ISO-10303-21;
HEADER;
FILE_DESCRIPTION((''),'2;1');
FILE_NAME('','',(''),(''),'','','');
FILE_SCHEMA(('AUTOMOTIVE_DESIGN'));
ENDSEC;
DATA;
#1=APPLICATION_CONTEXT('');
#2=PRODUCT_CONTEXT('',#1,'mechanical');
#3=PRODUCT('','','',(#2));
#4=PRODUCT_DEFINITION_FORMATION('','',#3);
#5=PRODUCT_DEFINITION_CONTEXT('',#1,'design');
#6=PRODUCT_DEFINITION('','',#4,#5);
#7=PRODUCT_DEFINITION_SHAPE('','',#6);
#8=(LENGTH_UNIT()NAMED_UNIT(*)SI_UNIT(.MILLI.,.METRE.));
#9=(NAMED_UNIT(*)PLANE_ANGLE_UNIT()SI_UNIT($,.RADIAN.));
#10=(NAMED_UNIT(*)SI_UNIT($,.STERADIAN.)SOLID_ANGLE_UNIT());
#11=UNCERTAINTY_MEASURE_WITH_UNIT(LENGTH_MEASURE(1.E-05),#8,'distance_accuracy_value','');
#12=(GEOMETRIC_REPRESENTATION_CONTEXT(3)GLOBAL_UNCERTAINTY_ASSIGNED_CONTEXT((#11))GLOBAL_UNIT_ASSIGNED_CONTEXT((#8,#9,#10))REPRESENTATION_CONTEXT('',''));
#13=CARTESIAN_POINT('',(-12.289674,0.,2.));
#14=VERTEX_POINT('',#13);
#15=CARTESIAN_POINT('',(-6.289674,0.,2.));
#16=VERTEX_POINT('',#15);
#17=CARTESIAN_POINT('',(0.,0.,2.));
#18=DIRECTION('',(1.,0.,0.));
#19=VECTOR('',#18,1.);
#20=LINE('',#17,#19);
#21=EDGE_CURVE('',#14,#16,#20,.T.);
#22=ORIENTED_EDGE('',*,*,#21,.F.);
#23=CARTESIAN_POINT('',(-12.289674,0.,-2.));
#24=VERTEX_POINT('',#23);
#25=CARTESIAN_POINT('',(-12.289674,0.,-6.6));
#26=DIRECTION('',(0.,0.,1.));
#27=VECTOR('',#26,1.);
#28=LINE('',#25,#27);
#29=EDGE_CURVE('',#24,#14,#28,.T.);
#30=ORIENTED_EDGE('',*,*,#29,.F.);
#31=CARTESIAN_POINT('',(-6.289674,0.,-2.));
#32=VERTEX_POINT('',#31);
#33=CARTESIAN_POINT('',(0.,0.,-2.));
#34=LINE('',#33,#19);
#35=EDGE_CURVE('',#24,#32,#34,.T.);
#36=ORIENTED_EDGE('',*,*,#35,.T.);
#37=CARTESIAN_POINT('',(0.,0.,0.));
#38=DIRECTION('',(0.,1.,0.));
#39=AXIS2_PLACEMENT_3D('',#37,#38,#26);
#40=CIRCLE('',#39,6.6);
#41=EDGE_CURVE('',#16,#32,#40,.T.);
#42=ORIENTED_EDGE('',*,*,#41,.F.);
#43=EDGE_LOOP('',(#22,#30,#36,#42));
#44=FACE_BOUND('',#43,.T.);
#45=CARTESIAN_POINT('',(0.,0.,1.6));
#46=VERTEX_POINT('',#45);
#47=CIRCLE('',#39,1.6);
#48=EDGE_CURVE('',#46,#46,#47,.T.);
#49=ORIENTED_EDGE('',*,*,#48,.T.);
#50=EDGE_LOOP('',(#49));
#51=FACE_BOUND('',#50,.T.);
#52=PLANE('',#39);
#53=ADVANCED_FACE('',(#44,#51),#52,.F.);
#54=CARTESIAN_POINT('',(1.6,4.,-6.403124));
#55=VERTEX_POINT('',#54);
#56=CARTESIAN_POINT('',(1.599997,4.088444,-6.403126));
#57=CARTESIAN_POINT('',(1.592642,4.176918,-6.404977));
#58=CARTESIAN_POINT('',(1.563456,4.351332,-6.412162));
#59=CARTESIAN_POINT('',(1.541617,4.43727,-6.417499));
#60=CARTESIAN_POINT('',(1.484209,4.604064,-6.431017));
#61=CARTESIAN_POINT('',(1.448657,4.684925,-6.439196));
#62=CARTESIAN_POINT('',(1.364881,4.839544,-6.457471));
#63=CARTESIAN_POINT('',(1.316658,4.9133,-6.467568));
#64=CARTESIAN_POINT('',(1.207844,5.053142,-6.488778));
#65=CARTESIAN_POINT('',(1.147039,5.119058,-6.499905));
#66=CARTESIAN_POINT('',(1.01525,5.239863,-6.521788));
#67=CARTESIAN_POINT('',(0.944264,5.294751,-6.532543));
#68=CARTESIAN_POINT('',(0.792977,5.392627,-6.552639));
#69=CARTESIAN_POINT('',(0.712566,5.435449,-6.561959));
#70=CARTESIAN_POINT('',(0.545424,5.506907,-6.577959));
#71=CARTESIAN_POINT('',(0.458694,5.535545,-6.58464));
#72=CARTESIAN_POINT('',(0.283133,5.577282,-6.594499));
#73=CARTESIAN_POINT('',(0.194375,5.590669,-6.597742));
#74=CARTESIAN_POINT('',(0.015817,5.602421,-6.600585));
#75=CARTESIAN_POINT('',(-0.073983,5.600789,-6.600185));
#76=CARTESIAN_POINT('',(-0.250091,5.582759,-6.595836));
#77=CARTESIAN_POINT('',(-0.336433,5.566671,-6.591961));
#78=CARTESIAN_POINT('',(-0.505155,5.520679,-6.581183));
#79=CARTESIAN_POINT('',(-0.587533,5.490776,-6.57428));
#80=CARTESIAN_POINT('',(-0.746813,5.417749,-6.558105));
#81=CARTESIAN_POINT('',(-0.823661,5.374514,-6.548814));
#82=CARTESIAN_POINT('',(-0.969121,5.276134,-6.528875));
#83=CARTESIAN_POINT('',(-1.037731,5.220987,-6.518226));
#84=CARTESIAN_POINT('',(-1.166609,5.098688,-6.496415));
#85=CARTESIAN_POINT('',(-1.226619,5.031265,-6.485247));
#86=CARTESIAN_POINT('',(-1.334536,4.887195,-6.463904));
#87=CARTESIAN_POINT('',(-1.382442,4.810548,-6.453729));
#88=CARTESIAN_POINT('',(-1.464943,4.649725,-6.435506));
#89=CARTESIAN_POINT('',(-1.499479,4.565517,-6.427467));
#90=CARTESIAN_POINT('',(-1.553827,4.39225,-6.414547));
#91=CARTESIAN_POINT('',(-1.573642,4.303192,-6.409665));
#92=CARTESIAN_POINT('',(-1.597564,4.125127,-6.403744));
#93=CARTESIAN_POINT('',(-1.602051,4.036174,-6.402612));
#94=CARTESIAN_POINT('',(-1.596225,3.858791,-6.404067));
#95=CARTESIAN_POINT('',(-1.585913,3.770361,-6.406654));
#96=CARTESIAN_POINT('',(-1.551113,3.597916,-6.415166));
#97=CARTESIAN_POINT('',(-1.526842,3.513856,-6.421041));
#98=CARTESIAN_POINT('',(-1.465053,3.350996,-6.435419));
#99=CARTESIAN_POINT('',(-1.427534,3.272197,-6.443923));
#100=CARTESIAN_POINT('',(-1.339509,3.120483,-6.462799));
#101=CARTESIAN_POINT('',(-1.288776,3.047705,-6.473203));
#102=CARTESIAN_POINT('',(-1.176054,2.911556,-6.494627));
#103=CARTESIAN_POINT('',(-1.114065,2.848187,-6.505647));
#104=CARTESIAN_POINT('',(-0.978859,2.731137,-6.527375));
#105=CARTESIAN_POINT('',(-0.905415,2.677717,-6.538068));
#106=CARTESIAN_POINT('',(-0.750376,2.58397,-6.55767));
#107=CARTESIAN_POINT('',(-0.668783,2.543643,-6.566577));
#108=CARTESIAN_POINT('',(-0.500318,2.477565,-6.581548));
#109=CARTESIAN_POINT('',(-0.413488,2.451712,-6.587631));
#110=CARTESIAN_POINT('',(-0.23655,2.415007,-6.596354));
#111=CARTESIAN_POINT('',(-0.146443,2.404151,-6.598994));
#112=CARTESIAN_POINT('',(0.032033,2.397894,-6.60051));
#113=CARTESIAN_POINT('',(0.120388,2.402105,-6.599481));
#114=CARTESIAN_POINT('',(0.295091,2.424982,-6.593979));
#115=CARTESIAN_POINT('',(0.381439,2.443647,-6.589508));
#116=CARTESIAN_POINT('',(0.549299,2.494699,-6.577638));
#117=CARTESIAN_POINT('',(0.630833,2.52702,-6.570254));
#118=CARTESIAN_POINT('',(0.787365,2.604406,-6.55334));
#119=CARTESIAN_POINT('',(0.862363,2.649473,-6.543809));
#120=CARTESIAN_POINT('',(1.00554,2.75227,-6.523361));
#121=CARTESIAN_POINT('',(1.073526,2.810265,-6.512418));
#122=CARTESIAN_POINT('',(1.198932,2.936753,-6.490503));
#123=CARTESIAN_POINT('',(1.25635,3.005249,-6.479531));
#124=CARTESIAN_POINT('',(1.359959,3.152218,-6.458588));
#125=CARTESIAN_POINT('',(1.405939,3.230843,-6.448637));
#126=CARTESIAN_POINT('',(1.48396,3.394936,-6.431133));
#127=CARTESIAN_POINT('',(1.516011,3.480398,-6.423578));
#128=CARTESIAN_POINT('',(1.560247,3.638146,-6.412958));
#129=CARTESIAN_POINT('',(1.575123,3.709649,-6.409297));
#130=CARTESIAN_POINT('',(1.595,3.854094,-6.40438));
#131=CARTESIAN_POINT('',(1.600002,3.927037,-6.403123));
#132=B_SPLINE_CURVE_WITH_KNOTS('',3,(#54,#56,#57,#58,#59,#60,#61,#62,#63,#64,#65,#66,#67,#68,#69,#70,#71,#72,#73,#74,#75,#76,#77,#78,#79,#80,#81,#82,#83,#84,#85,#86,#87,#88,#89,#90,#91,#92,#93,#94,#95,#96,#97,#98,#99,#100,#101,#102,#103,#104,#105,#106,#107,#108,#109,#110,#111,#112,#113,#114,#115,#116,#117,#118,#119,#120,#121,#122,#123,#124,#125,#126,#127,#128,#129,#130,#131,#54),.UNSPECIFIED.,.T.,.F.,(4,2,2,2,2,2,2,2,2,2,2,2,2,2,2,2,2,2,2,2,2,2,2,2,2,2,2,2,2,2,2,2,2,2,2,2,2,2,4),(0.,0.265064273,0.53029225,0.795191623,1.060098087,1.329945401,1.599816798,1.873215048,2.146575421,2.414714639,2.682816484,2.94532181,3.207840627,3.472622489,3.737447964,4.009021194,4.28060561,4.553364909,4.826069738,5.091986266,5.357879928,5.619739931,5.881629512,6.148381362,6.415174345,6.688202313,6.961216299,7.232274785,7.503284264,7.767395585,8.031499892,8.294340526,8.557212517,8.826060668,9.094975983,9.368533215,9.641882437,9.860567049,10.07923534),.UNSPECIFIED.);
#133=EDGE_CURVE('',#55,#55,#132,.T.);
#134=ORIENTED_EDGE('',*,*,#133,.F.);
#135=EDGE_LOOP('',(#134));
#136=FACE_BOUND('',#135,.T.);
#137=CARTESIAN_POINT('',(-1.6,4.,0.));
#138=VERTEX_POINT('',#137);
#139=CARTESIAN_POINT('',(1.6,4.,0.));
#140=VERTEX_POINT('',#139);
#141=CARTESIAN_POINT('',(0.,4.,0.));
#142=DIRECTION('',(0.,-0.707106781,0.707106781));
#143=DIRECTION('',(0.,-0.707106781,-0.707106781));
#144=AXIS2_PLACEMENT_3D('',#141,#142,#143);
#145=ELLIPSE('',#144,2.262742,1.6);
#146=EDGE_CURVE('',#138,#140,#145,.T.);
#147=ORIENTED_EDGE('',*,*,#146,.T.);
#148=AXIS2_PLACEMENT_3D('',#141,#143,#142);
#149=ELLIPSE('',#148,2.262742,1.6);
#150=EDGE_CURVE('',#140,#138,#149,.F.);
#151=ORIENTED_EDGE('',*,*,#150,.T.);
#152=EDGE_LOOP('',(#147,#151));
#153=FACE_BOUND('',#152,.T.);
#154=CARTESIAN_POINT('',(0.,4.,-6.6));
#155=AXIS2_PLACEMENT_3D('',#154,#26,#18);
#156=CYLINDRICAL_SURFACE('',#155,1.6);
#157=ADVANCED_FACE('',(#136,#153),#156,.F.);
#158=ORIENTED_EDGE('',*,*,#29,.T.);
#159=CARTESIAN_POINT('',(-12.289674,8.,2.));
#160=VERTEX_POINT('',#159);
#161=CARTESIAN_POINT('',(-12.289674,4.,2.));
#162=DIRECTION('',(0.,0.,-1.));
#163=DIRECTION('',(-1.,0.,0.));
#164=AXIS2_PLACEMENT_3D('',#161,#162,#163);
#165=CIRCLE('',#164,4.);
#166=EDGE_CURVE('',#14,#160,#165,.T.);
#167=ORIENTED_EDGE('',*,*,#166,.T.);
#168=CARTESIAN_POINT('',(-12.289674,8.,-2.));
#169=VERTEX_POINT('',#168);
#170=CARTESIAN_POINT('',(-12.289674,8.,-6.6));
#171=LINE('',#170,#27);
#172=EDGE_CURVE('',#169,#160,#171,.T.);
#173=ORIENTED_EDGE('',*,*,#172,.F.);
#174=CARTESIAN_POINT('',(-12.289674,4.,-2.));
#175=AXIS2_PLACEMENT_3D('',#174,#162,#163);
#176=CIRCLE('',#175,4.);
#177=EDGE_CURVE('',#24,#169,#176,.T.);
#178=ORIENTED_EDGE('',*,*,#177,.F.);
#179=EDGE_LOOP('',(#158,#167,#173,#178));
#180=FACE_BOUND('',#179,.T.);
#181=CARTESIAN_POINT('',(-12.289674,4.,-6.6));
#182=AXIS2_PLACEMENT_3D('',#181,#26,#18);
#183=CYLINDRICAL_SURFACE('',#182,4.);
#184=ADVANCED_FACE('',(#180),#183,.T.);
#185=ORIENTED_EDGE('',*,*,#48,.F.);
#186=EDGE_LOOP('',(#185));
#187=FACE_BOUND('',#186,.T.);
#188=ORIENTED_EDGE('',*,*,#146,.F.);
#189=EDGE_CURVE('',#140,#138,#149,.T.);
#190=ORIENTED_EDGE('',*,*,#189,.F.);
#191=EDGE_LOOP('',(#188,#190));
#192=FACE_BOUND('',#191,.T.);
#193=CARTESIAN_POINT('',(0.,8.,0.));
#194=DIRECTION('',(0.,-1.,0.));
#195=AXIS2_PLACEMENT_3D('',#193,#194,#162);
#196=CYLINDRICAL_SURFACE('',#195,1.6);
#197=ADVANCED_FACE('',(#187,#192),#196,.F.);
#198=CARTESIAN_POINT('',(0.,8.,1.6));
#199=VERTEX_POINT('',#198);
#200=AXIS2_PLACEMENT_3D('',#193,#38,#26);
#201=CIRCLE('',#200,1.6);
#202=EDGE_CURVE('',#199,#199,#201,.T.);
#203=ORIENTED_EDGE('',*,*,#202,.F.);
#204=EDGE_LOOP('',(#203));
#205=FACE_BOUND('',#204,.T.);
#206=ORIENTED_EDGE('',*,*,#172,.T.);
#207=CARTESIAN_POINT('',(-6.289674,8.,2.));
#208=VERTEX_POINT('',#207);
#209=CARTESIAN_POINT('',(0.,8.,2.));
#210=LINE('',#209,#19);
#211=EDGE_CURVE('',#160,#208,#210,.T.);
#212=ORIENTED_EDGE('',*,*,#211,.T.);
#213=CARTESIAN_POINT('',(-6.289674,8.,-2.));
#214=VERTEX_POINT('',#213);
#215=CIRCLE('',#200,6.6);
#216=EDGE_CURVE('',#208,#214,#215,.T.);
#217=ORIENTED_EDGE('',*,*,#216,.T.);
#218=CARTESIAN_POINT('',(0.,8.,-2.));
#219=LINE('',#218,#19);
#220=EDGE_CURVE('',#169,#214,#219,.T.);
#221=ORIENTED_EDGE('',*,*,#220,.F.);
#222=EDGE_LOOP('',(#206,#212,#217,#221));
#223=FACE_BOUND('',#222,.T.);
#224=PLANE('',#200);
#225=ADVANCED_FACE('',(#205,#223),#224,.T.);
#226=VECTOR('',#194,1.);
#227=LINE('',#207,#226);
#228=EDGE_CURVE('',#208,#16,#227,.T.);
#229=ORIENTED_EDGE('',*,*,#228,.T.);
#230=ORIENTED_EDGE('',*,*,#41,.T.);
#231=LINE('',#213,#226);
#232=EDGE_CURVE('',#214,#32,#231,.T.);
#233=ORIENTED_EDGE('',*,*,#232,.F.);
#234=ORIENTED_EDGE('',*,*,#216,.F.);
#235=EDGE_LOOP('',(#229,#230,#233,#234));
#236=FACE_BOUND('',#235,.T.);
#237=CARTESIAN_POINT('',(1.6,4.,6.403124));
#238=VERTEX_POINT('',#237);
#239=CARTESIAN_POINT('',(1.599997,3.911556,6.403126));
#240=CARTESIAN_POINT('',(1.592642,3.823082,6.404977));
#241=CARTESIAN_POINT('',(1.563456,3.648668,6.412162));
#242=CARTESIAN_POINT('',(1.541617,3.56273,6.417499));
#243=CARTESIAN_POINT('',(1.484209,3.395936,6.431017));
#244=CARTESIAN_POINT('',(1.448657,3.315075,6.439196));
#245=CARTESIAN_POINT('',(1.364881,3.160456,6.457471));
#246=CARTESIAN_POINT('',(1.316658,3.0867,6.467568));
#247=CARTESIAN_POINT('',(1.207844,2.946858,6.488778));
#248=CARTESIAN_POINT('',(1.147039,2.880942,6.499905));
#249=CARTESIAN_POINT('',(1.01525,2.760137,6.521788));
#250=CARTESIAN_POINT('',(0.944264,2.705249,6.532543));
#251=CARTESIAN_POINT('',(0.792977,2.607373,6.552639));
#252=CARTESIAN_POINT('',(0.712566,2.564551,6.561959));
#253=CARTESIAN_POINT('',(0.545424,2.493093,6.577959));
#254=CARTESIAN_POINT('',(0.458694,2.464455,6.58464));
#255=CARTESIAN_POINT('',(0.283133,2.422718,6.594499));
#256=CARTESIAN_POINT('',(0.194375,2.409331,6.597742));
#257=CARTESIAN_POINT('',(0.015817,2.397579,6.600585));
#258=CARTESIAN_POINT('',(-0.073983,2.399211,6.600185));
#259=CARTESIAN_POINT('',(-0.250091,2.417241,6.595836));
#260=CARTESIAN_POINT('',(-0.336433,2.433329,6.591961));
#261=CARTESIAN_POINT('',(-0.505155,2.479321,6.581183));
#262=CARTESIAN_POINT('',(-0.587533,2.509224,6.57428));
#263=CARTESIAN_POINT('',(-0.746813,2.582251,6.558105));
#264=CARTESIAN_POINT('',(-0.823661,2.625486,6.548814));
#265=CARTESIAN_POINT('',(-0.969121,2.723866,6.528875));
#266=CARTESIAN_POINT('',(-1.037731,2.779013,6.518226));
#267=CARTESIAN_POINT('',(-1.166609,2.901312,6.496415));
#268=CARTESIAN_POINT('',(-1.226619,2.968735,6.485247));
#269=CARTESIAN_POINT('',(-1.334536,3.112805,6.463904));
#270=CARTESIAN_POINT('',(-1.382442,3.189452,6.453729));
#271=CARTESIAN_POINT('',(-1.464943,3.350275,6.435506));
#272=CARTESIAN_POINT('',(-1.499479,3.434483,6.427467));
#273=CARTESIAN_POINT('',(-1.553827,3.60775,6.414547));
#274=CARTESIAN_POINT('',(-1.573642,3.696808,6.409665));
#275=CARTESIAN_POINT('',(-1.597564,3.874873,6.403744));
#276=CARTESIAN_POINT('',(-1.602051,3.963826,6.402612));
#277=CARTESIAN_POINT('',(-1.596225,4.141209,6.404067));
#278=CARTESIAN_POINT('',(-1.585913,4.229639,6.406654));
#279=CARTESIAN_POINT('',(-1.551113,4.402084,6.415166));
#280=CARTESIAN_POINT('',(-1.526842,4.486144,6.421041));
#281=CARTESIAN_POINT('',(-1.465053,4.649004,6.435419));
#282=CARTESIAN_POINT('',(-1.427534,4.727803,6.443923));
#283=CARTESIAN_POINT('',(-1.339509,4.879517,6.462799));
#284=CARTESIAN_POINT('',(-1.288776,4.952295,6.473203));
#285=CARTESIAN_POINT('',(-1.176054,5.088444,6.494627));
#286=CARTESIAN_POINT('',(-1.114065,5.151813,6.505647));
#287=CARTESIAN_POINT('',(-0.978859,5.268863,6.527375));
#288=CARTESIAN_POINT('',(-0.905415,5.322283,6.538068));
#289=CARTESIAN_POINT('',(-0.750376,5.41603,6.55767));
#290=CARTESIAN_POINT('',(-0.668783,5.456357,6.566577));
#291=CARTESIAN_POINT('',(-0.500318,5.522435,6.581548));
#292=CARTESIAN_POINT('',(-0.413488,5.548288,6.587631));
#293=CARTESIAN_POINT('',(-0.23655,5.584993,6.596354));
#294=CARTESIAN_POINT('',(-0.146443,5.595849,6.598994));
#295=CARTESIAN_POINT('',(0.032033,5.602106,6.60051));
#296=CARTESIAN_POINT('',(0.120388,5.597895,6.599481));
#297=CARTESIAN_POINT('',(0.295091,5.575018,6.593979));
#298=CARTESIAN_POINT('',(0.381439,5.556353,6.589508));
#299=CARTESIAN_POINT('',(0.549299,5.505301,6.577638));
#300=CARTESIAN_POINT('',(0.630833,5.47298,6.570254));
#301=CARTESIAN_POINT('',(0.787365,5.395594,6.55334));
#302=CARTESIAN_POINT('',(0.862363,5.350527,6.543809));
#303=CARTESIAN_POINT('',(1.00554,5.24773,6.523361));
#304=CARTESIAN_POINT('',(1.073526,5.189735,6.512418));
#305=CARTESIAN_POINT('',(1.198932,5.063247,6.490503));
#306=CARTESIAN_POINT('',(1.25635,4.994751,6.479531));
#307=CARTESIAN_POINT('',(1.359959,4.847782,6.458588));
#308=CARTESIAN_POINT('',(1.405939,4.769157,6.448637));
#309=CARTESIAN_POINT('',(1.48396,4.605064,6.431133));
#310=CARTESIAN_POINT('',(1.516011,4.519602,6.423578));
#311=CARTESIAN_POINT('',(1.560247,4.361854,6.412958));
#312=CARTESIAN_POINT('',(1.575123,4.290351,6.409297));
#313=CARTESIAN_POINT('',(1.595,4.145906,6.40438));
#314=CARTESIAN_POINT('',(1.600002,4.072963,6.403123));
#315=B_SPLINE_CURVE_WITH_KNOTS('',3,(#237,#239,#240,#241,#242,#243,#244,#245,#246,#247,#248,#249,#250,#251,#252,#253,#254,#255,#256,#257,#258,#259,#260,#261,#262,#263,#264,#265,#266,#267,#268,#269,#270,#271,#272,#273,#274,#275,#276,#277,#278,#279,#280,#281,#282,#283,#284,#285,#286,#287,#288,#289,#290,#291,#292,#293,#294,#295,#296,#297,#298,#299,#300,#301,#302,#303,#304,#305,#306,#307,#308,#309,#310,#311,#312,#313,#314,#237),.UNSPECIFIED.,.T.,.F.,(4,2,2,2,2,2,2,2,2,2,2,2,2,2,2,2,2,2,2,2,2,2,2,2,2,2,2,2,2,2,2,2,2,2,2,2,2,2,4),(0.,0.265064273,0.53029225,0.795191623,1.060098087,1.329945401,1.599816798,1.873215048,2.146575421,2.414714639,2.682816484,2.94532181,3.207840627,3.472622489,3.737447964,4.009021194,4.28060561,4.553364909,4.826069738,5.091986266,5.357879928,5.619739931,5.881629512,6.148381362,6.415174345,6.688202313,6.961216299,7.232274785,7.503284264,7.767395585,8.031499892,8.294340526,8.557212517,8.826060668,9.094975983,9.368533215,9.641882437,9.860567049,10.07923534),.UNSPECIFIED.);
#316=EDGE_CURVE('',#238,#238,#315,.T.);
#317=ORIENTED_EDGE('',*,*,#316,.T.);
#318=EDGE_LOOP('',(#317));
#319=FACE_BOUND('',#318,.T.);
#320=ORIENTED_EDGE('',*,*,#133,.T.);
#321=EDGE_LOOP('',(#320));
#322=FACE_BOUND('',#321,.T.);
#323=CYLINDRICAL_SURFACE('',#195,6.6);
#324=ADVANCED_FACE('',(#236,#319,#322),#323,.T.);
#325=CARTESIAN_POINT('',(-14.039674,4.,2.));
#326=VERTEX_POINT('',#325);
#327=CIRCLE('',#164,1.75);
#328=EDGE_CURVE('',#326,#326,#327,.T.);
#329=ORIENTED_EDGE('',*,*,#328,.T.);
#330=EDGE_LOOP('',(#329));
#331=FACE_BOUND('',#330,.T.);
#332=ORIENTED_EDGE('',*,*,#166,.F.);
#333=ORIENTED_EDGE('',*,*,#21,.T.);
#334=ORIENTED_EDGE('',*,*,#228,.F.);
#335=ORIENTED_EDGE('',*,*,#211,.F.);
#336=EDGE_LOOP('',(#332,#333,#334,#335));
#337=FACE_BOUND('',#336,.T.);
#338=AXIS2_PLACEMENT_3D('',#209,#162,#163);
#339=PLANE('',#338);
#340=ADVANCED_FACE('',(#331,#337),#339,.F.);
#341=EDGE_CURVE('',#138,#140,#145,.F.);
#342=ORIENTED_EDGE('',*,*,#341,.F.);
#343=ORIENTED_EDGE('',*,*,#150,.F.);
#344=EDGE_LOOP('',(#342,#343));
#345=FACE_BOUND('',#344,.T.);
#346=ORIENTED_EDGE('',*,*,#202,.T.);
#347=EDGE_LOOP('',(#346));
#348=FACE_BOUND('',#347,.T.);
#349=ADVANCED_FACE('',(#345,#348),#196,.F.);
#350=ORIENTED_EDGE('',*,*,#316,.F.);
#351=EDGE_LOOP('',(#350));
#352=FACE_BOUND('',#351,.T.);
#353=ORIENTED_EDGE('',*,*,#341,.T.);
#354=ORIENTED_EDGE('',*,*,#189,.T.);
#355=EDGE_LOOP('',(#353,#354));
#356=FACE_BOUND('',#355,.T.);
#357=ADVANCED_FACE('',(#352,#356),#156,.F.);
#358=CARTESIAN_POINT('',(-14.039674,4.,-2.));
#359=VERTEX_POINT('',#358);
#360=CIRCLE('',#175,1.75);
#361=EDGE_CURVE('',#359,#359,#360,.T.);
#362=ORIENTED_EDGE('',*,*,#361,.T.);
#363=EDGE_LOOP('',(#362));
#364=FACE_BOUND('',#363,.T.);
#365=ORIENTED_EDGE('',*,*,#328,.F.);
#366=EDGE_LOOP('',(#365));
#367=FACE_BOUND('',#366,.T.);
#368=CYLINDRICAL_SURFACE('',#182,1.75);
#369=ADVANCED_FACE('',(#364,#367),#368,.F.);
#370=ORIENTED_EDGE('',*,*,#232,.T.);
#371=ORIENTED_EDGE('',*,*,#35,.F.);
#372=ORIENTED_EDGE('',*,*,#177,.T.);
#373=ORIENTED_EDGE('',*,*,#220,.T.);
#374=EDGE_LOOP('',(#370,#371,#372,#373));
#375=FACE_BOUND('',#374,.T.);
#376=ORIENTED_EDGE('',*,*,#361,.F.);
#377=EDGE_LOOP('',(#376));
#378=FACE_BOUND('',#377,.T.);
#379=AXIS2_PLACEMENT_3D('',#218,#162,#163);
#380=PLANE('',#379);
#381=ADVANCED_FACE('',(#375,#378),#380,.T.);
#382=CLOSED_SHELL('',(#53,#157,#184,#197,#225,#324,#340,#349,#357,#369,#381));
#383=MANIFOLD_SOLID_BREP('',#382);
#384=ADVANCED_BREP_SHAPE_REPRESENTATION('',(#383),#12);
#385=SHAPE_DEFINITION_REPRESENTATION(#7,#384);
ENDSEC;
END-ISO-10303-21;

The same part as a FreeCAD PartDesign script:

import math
import FreeCAD as App
import Part
import Sketcher

doc = App.newDocument("Part")
body = doc.addObject("PartDesign::Body", "Body")

sketch1 = body.newObject("Sketcher::SketchObject", "Sketch")
sketch1.AttachmentSupport = (doc.getObject("XZ_Plane"), [""])
sketch1.MapMode = "FlatFace"
sketch1.addGeometry([
    Part.LineSegment(App.Vector(-6.289674, -2, 0), App.Vector(-16.289674, -2, 0)),
    Part.LineSegment(App.Vector(-16.289674, -2, 0), App.Vector(-16.289674, 2, 0)),
    Part.LineSegment(App.Vector(-16.289674, 2, 0), App.Vector(-6.289674, 2, 0)),
    Part.ArcOfCircle(Part.Circle(App.Vector(0, 0, 0), App.Vector(0, 0, 1), 6.6), math.radians(17.639701), math.radians(162.360299)),
    Part.ArcOfCircle(Part.Circle(App.Vector(0, 0, 0), App.Vector(0, 0, 1), 6.6), math.radians(-17.639701), math.radians(17.639701)),
    Part.ArcOfCircle(Part.Circle(App.Vector(0, 0, 0), App.Vector(0, 0, 1), 6.6), math.radians(-162.360299), math.radians(-17.639701)),
    Part.Circle(App.Vector(0, 0, 0), App.Vector(0, 0, 1), 1.6),
], False)
sketch1.addConstraint([
    Sketcher.Constraint("Coincident", 0, 2, 1, 1),
    Sketcher.Constraint("Coincident", 1, 2, 2, 1),
    Sketcher.Constraint("Coincident", 2, 2, 3, 2),
    Sketcher.Constraint("Tangent", 3, 1, 4, 2),
    Sketcher.Constraint("Tangent", 4, 1, 5, 2),
    Sketcher.Constraint("Coincident", 5, 1, 0, 1),
    Sketcher.Constraint("Horizontal", 0),
    Sketcher.Constraint("Vertical", 1),
    Sketcher.Constraint("Horizontal", 2),
    Sketcher.Constraint("Coincident", 3, 3, -1, 1),
    Sketcher.Constraint("Coincident", 5, 3, -1, 1),
    Sketcher.Constraint("Coincident", 6, 3, -1, 1),
    Sketcher.Constraint("Horizontal", 2, 2, 3, 1),
    Sketcher.Constraint("Horizontal", 0, 2, 4, 1),
    Sketcher.Constraint("Vertical", 3, 1, 4, 1),
    Sketcher.Constraint("Diameter", 6, 3.2),
    Sketcher.Constraint("Radius", 3, 6.6),
    Sketcher.Constraint("DistanceX", 0, 2, 0, 1, 10.0),
    Sketcher.Constraint("DistanceY", 1, 1, 1, 2, 4.0),
])
pad1 = body.newObject("PartDesign::Pad", "Pad")
pad1.Profile = sketch1
pad1.Length = 8
pad1.Reversed = True

sketch2 = body.newObject("Sketcher::SketchObject", "Sketch001")
sketch2.AttachmentSupport = (doc.getObject("XY_Plane"), [""])
sketch2.MapMode = "FlatFace"
sketch2.AttachmentOffset = App.Placement(App.Vector(0, 0, 2), App.Rotation())
sketch2.addGeometry([
    Part.LineSegment(App.Vector(-16.289674, 8, 0), App.Vector(-16.289674, 4, 0)),
    Part.ArcOfCircle(Part.Circle(App.Vector(-12.289674, 4, 0), App.Vector(0, 0, 1), 4), math.radians(90), math.radians(180)),
    Part.LineSegment(App.Vector(-12.289674, 8, 0), App.Vector(-16.289674, 8, 0)),
    Part.LineSegment(App.Vector(-16.289674, 4, 0), App.Vector(-16.289674, 0, 0)),
    Part.LineSegment(App.Vector(-16.289674, 0, 0), App.Vector(-12.289674, 0, 0)),
    Part.ArcOfCircle(Part.Circle(App.Vector(-12.289674, 4, 0), App.Vector(0, 0, 1), 4), math.radians(180), math.radians(270)),
    Part.Circle(App.Vector(-12.289674, 4, 0), App.Vector(0, 0, 1), 1.75),
    Part.Circle(App.Vector(0, 4, 0), App.Vector(0, 0, 1), 1.6),
], False)
sketch2.addConstraint([
    Sketcher.Constraint("Tangent", 0, 2, 1, 2),
    Sketcher.Constraint("Tangent", 1, 1, 2, 1),
    Sketcher.Constraint("Coincident", 2, 2, 0, 1),
    Sketcher.Constraint("Coincident", 3, 2, 4, 1),
    Sketcher.Constraint("Tangent", 4, 2, 5, 2),
    Sketcher.Constraint("Tangent", 5, 1, 3, 1),
    Sketcher.Constraint("Vertical", 0),
    Sketcher.Constraint("Horizontal", 2),
    Sketcher.Constraint("Vertical", 3),
    Sketcher.Constraint("Horizontal", 4),
    Sketcher.Constraint("Coincident", 5, 3, 1, 3),
    Sketcher.Constraint("Coincident", 6, 3, 1, 3),
    Sketcher.Constraint("Equal", 1, 5),
    Sketcher.Constraint("PointOnObject", 7, 3, -2),
    Sketcher.Constraint("PointOnObject", 3, 2, -1),
    Sketcher.Constraint("Horizontal", 6, 3, 7, 3),
    Sketcher.Constraint("Radius", 1, 4.0),
    Sketcher.Constraint("Diameter", 6, 3.5),
    Sketcher.Constraint("Diameter", 7, 3.2),
    Sketcher.Constraint("DistanceX", 1, 3, -1, 1, 12.289674),
])
pocket1 = body.newObject("PartDesign::Pocket", "Pocket")
pocket1.Profile = sketch2
pocket1.Type = "ThroughAll"
pocket1.Midplane = True

doc.recompute()
